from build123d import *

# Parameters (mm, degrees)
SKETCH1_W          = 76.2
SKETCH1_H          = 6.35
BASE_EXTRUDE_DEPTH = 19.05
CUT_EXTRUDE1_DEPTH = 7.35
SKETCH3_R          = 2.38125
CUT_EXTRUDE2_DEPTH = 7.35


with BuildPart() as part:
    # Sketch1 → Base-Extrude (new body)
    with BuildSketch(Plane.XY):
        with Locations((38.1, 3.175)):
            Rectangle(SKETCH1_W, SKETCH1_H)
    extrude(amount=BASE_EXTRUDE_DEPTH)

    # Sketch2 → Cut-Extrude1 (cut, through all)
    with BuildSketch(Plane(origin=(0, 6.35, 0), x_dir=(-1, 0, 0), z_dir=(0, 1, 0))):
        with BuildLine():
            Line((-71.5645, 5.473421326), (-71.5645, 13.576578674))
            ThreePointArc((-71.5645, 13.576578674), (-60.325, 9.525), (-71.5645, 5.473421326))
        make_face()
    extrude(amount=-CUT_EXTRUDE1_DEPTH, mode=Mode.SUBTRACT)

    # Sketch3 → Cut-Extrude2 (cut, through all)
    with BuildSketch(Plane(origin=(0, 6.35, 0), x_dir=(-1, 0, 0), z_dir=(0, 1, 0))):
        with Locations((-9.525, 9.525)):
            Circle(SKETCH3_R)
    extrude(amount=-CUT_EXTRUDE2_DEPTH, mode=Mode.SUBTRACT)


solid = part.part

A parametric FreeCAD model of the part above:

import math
import FreeCAD as App
import Part
import Sketcher

V = App.Vector
Q = App.Units.Quantity

doc = App.newDocument("Part")
body = doc.addObject("PartDesign::Body", "Body")

sketch1 = doc.addObject("Sketcher::SketchObject", "Sketch")
body.addObject(sketch1)
sketch1.AttachmentSupport = (doc.XY_Plane, [""])
sketch1.MapMode = "FlatFace"
sketch1.addGeometry(Part.LineSegment(V(0, 6, 0), V(0, 0, 0)), False)
sketch1.addGeometry(Part.LineSegment(V(0, 0, 0), V(76, 0, 0)), False)
sketch1.addGeometry(Part.LineSegment(V(76, 0, 0), V(76, 6, 0)), False)
sketch1.addGeometry(Part.LineSegment(V(76, 6, 0), V(0, 6, 0)), False)
sketch1.addConstraint(Sketcher.Constraint("Coincident", 0, 2, 1, 1))
sketch1.addConstraint(Sketcher.Constraint("Coincident", 1, 2, 2, 1))
sketch1.addConstraint(Sketcher.Constraint("Coincident", 2, 2, 3, 1))
sketch1.addConstraint(Sketcher.Constraint("Coincident", 3, 2, 0, 1))
sketch1.addConstraint(Sketcher.Constraint("Vertical", 0))
sketch1.addConstraint(Sketcher.Constraint("Horizontal", 1))
sketch1.addConstraint(Sketcher.Constraint("Vertical", 2))
sketch1.addConstraint(Sketcher.Constraint("Horizontal", 3))
sketch1.addConstraint(Sketcher.Constraint("Coincident", 0, 2, -1, 1))
sketch1.addConstraint(Sketcher.Constraint("DistanceX", 1, 1, 1, 2, Q("3 in")))
sketch1.addConstraint(Sketcher.Constraint("DistanceY", 0, 2, 0, 1, Q("0.25 in")))
pad1 = doc.addObject("PartDesign::Pad", "Pad")
body.addObject(pad1)
pad1.Profile = sketch1
pad1.Length = Q("0.75 in")

sketch2 = doc.addObject("Sketcher::SketchObject", "Sketch001")
body.addObject(sketch2)
sketch2.AttachmentSupport = (doc.XZ_Plane, [""])
sketch2.MapMode = "FlatFace"
sketch2.AttachmentOffset = App.Placement(V(0, 0, -0.25 * 25.4), App.Rotation())
sketch2.addGeometry(Part.LineSegment(V(72, 14, 0), V(72, 5, 0)), False)
sketch2.addGeometry(Part.ArcOfCircle(Part.Circle(V(67, 10, 0), V(0, 0, 1), 6), math.radians(40), math.radians(320)), False)
sketch2.addConstraint(Sketcher.Constraint("Coincident", 0, 1, 1, 1))
sketch2.addConstraint(Sketcher.Constraint("Coincident", 1, 2, 0, 2))
sketch2.addConstraint(Sketcher.Constraint("Vertical", 0))
sketch2.addConstraint(Sketcher.Constraint("Radius", 1, Q("0.25 in")))
sketch2.addConstraint(Sketcher.Constraint("DistanceX", -1, 1, 1, 3, Q("2.625 in")))
sketch2.addConstraint(Sketcher.Constraint("DistanceY", -1, 1, 1, 3, Q("0.375 in")))
sketch2.addConstraint(Sketcher.Constraint("DistanceX", -1, 1, 0, 1, Q("2.8175 in")))
pocket1 = doc.addObject("PartDesign::Pocket", "Pocket")
body.addObject(pocket1)
pocket1.Profile = sketch2
pocket1.Type = "ThroughAll"
pocket1.Reversed = True

sketch3 = doc.addObject("Sketcher::SketchObject", "Sketch002")
body.addObject(sketch3)
sketch3.AttachmentSupport = (doc.XZ_Plane, [""])
sketch3.MapMode = "FlatFace"
sketch3.AttachmentOffset = App.Placement(V(0, 0, -0.25 * 25.4), App.Rotation())
sketch3.addGeometry(Part.Circle(V(9.5, 9.5, 0), V(0, 0, 1), 2.4), False)
sketch3.addConstraint(Sketcher.Constraint("Diameter", 0, Q("0.1875 in")))
sketch3.addConstraint(Sketcher.Constraint("DistanceX", -1, 1, 0, 3, Q("0.375 in")))
sketch3.addConstraint(Sketcher.Constraint("DistanceY", -1, 1, 0, 3, Q("0.375 in")))
pocket2 = doc.addObject("PartDesign::Pocket", "Pocket001")
body.addObject(pocket2)
pocket2.Profile = sketch3
pocket2.Type = "ThroughAll"
pocket2.Reversed = True

doc.recompute()
